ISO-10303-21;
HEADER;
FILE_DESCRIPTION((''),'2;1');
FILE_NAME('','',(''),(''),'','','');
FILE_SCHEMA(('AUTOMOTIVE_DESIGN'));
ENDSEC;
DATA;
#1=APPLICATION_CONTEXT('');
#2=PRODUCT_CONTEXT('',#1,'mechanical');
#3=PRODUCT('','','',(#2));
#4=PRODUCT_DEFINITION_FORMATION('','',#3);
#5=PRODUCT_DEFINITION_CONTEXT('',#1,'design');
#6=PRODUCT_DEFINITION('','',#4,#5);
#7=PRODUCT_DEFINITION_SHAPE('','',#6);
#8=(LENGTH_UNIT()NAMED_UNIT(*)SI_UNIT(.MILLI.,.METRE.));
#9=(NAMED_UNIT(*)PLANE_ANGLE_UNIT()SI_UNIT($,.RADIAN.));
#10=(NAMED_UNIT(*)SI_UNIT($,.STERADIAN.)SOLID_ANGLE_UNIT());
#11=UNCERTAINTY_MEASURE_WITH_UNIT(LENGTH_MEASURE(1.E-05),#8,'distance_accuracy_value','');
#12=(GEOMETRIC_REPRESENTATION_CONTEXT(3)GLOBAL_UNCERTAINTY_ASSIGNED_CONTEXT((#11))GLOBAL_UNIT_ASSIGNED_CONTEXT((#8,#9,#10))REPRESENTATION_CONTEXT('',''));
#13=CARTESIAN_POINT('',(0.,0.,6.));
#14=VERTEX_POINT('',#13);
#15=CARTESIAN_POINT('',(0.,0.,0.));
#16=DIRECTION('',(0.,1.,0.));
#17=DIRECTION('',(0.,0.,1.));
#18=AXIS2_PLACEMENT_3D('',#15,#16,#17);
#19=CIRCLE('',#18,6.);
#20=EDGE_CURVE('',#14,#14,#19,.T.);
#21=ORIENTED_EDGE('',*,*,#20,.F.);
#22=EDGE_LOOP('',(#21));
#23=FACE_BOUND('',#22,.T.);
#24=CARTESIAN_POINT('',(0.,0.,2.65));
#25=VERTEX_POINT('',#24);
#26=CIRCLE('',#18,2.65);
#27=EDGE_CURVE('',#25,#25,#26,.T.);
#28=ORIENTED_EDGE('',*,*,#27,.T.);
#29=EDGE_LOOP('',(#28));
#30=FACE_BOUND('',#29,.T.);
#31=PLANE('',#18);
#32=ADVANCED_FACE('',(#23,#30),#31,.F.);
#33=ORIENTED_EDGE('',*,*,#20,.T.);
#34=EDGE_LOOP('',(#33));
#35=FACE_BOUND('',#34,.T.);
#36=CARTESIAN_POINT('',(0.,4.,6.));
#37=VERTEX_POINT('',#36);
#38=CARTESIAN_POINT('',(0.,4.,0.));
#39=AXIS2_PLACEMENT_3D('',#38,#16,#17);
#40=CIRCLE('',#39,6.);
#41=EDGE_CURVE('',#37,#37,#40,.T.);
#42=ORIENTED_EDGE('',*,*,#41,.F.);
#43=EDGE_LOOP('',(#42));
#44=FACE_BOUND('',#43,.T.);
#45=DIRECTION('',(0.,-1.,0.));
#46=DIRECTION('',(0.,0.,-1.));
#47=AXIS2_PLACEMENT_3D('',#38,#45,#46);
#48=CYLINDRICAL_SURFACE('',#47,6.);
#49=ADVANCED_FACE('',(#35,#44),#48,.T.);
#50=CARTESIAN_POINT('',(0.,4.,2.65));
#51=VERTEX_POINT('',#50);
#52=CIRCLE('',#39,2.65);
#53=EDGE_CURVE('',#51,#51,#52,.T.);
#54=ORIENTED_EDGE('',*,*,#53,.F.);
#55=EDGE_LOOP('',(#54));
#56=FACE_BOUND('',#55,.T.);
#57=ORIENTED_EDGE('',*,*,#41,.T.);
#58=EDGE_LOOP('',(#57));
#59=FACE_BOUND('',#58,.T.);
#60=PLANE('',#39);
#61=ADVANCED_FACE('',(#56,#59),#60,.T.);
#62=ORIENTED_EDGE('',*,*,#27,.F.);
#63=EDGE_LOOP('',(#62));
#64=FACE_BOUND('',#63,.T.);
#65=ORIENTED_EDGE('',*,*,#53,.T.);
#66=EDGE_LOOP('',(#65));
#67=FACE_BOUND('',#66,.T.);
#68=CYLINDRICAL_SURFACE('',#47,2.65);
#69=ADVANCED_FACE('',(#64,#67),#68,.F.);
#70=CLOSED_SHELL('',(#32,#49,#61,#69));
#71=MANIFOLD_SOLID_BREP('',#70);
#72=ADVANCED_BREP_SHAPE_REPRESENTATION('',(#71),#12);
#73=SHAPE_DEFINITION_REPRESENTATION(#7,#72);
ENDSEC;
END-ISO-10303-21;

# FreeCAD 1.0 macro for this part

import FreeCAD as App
import Part
import Sketcher
from FreeCAD import Vector

doc = App.newDocument("Part")
params = doc.addObject("Spreadsheet::Sheet", "Params")
for row, (alias, value) in enumerate([
    ("sketch1_diameter", "12 mm"),
    ("sketch1_diameter2", "5.3 mm"),
    ("pad1_length", "4 mm"),
], start=1):
    params.set(f"A{row}", alias)
    params.set(f"B{row}", "=" + value)
    params.setAlias(f"B{row}", alias)

body = doc.addObject("PartDesign::Body", "Body")

# Sketch on XZ plane
sketch1 = body.newObject("Sketcher::SketchObject", "Sketch")
sketch1.AttachmentSupport = (doc.getObject("XZ_Plane"), [""])
sketch1.MapMode = "FlatFace"
sketch1.addGeometry([
    Part.Circle(Vector(0, 0, 0), Vector(0, 0, 1), 6),
    Part.Circle(Vector(0, 0, 0), Vector(0, 0, 1), 2.6),
], False)
sketch1.addConstraint([
    Sketcher.Constraint("Coincident", 0, 3, -1, 1),
    Sketcher.Constraint("Coincident", 1, 3, -1, 1),
    Sketcher.Constraint("Diameter", 0, 12.0),
    Sketcher.Constraint("Diameter", 1, 5.3),
])
sketch1.setExpression("Constraints[2]", "Params.sketch1_diameter")
sketch1.setExpression("Constraints[3]", "Params.sketch1_diameter2")
pad1 = body.newObject("PartDesign::Pad", "Pad")
pad1.Profile = sketch1
pad1.setExpression("Length", "Params.pad1_length")
pad1.Reversed = True

doc.recompute()
